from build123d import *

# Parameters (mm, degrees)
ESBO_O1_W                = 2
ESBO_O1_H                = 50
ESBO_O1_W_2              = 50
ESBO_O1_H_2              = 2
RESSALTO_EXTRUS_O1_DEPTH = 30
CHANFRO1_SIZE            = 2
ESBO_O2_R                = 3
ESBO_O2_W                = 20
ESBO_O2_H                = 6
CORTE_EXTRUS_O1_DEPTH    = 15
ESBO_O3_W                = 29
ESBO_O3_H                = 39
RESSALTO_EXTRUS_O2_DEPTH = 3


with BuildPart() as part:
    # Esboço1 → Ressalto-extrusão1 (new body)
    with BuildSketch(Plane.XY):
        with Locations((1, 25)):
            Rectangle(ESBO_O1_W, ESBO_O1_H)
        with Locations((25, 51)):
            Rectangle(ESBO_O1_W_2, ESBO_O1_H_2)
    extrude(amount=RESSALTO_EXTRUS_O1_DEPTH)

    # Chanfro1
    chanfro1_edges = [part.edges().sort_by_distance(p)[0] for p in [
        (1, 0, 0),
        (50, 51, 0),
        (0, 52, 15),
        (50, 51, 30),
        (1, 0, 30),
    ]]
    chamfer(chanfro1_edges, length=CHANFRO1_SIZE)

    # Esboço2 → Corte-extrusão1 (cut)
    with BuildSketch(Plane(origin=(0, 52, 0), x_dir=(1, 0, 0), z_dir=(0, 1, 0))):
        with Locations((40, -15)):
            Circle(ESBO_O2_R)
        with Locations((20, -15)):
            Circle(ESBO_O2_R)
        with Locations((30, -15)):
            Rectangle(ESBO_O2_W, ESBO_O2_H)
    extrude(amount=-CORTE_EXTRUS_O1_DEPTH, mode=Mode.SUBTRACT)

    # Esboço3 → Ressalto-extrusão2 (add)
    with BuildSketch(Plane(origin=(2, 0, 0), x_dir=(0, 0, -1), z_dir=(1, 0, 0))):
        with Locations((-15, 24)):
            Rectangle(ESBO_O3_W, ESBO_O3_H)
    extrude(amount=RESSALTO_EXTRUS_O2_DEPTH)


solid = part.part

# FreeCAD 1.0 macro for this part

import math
import FreeCAD as App
import Part
import Sketcher


def edges_at(feature, points):
    """Names of the edges that pass closest to the given points."""
    edges = feature.Shape.Edges
    near = lambda p: min(range(len(edges)), key=lambda i: edges[i].distToShape(Part.Vertex(*p))[0])
    return sorted({f"Edge{near(p) + 1}" for p in points})

doc = App.newDocument("Part")
body = doc.addObject("PartDesign::Body", "Body")

# Sketch on XY plane
sketch1 = body.newObject("Sketcher::SketchObject", "Sketch")
sketch1.AttachmentSupport = (doc.getObject("XY_Plane"), [""])
sketch1.MapMode = "FlatFace"
sketch1.addGeometry([
    Part.LineSegment(App.Vector(0, 0, 0), App.Vector(2, 0, 0)),  # 0
    Part.LineSegment(App.Vector(2, 0, 0), App.Vector(2, 50, 0)),  # 1
    Part.LineSegment(App.Vector(2, 50, 0), App.Vector(50, 50, 0)),  # 2
    Part.LineSegment(App.Vector(50, 50, 0), App.Vector(50, 52, 0)),  # 3
    Part.LineSegment(App.Vector(50, 52, 0), App.Vector(0, 52, 0)),  # 4
    Part.LineSegment(App.Vector(0, 52, 0), App.Vector(0, 0, 0)),  # 5
], False)
sketch1.addConstraint([
    Sketcher.Constraint("Coincident", 0, 2, 1, 1),
    Sketcher.Constraint("Coincident", 1, 2, 2, 1),
    Sketcher.Constraint("Coincident", 2, 2, 3, 1),
    Sketcher.Constraint("Coincident", 3, 2, 4, 1),
    Sketcher.Constraint("Coincident", 4, 2, 5, 1),
    Sketcher.Constraint("Coincident", 5, 2, 0, 1),
    Sketcher.Constraint("Horizontal", 0),
    Sketcher.Constraint("Vertical", 1),
    Sketcher.Constraint("Horizontal", 2),
    Sketcher.Constraint("Vertical", 3),
    Sketcher.Constraint("Horizontal", 4),
    Sketcher.Constraint("Vertical", 5),
    Sketcher.Constraint("Coincident", 5, 2, -1, 1),
    Sketcher.Constraint("Equal", 4, 1),
    Sketcher.Constraint("Equal", 0, 3),
    Sketcher.Constraint("DistanceX", 0, 1, 0, 2, 2.0),
    Sketcher.Constraint("DistanceX", 2, 1, 2, 2, 48.0),
])
pad1 = body.newObject("PartDesign::Pad", "Pad")
pad1.Profile = sketch1
pad1.Length = 30
doc.recompute()

chamfer = body.newObject("PartDesign::Chamfer", "Chamfer")
chamfer.Base = (pad1, edges_at(pad1, [
    (1, 0, 0),
    (50, 51, 0),
    (0, 52, 15),
    (50, 51, 30),
    (1, 0, 30),
]))
chamfer.Size = 2

# Sketch on XZ plane
sketch2 = body.newObject("Sketcher::SketchObject", "Sketch001")
sketch2.AttachmentSupport = (doc.getObject("XZ_Plane"), [""])
sketch2.MapMode = "FlatFace"
sketch2.AttachmentOffset = App.Placement(App.Vector(0, 0, -52), App.Rotation())
sketch2.addGeometry([
    Part.ArcOfCircle(Part.Circle(App.Vector(40, 15, 0), App.Vector(0, 0, 1), 3), math.radians(-90), math.radians(90)),
    Part.LineSegment(App.Vector(40, 12, 0), App.Vector(20, 12, 0)),
    Part.ArcOfCircle(Part.Circle(App.Vector(20, 15, 0), App.Vector(0, 0, 1), 3), math.radians(90), math.radians(270)),
    Part.LineSegment(App.Vector(20, 18, 0), App.Vector(40, 18, 0)),
], False)
sketch2.addConstraint([
    Sketcher.Constraint("Tangent", 0, 1, 1, 1),
    Sketcher.Constraint("Tangent", 1, 2, 2, 2),
    Sketcher.Constraint("Tangent", 2, 1, 3, 1),
    Sketcher.Constraint("Tangent", 3, 2, 0, 2),
    Sketcher.Constraint("Horizontal", 1),
    Sketcher.Constraint("Horizontal", 3),
    Sketcher.Constraint("Radius", 0, 3.0),
    Sketcher.Constraint("DistanceX", 1, 2, 1, 1, 20.0),
    Sketcher.Constraint("DistanceX", -1, 1, 0, 3, 40.0),
    Sketcher.Constraint("DistanceY", -1, 1, 0, 3, 15.0),
])
pocket1 = body.newObject("PartDesign::Pocket", "Pocket")
pocket1.Profile = sketch2
pocket1.Length = 15
pocket1.Reversed = True

# Sketch on YZ plane
sketch3 = body.newObject("Sketcher::SketchObject", "Sketch002")
sketch3.AttachmentSupport = (doc.getObject("YZ_Plane"), [""])
sketch3.MapMode = "FlatFace"
sketch3.AttachmentOffset = App.Placement(App.Vector(0, 0, 2), App.Rotation())
sketch3.addGeometry([
    Part.LineSegment(App.Vector(43.5, 29.5, 0), App.Vector(4.5, 29.5, 0)),
    Part.LineSegment(App.Vector(4.5, 29.5, 0), App.Vector(4.5, 0.5, 0)),
    Part.LineSegment(App.Vector(4.5, 0.5, 0), App.Vector(43.5, 0.5, 0)),
    Part.LineSegment(App.Vector(43.5, 0.5, 0), App.Vector(43.5, 29.5, 0)),
], False)
sketch3.addConstraint([
    Sketcher.Constraint("Coincident", 0, 2, 1, 1),
    Sketcher.Constraint("Coincident", 1, 2, 2, 1),
    Sketcher.Constraint("Coincident", 2, 2, 3, 1),
    Sketcher.Constraint("Coincident", 3, 2, 0, 1),
    Sketcher.Constraint("Horizontal", 0),
    Sketcher.Constraint("Vertical", 1),
    Sketcher.Constraint("Horizontal", 2),
    Sketcher.Constraint("Vertical", 3),
    Sketcher.Constraint("DistanceX", 0, 2, 0, 1, 39.0),
    Sketcher.Constraint("DistanceY", 1, 2, 1, 1, 29.0),
    Sketcher.Constraint("DistanceX", -1, 1, 0, 2, 4.5),
    Sketcher.Constraint("DistanceY", -1, 1, 0, 2, 29.5),
])
pad2 = body.newObject("PartDesign::Pad", "Pad001")
pad2.Profile = sketch3
pad2.Length = 3

doc.recompute()
